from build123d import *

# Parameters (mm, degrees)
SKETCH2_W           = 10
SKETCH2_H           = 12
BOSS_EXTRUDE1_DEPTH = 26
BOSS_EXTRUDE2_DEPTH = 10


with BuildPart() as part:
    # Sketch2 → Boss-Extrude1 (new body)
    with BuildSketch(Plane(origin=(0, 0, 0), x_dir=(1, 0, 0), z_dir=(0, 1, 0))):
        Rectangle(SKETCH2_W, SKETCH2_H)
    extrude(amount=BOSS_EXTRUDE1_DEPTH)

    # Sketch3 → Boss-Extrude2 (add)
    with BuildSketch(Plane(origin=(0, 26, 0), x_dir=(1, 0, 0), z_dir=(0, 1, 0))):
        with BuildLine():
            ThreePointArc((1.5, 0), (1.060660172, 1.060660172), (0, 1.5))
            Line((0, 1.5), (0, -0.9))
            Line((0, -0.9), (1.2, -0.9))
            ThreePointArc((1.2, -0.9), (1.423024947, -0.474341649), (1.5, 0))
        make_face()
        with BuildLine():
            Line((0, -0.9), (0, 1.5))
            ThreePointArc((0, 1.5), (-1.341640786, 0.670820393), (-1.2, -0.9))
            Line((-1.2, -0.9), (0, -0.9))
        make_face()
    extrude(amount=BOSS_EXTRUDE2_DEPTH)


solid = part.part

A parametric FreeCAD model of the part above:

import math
import FreeCAD as App
import Part
import Sketcher
from FreeCAD import Vector
Q = App.Units.Quantity


def add_polygon(sketch, points):
    """Adds a closed chain of lines whose ends are joined by coincident constraints."""
    first, n = sketch.GeometryCount, len(points)
    for a, b in zip(points, points[1:] + points[:1]):
        sketch.addGeometry(Part.LineSegment(App.Vector(*a, 0), App.Vector(*b, 0)), False)
    for i in range(n):
        sketch.addConstraint(Sketcher.Constraint("Coincident", first + i, 2, first + (i + 1) % n, 1))

doc = App.newDocument("Part")
body = doc.addObject("PartDesign::Body", "Body")

sketch1 = body.newObject("Sketcher::SketchObject", "Sketch")
sketch1.AttachmentSupport = (doc.getObject("XZ_Plane"), [""])
sketch1.MapMode = "FlatFace"
add_polygon(sketch1, [(-5, -6), (-5, 6), (5, 6), (5, -6)])
sketch1.addConstraint(Sketcher.Constraint("Vertical", 0))
sketch1.addConstraint(Sketcher.Constraint("Horizontal", 1))
sketch1.addConstraint(Sketcher.Constraint("Vertical", 2))
sketch1.addConstraint(Sketcher.Constraint("Horizontal", 3))
sketch1.addConstraint(Sketcher.Constraint("Symmetric", 0, 2, 2, 2, -1, 1))
sketch1.addConstraint(Sketcher.Constraint("DistanceX", 1, 1, 1, 2, Q("10 mm")))
sketch1.addConstraint(Sketcher.Constraint("DistanceY", 0, 1, 0, 2, Q("12 mm")))
pad1 = body.newObject("PartDesign::Pad", "Pad")
pad1.Profile = sketch1
pad1.Length = 26
pad1.Reversed = True

sketch2 = body.newObject("Sketcher::SketchObject", "Sketch001")
sketch2.AttachmentSupport = (doc.getObject("XZ_Plane"), [""])
sketch2.MapMode = "FlatFace"
sketch2.AttachmentOffset = App.Placement(Vector(0, 0, -26), App.Rotation())
sketch2.addGeometry(Part.ArcOfCircle(Part.Circle(Vector(0, 0, 0), Vector(0, 0, 1), 1.5), math.radians(0), math.radians(37)), False)
sketch2.addGeometry(Part.ArcOfCircle(Part.Circle(Vector(0, 0, 0), Vector(0, 0, 1), 1.5), math.radians(-90), math.radians(0)), False)
sketch2.addGeometry(Part.ArcOfCircle(Part.Circle(Vector(0, 0, 0), Vector(0, 0, 1), 1.5), math.radians(143), math.radians(270)), False)
sketch2.addGeometry(Part.LineSegment(Vector(-1.2, 0.9, 0), Vector(1.2, 0.9, 0)), False)
sketch2.addConstraint(Sketcher.Constraint("Tangent", 0, 1, 1, 2))
sketch2.addConstraint(Sketcher.Constraint("Tangent", 1, 1, 2, 2))
sketch2.addConstraint(Sketcher.Constraint("Coincident", 2, 1, 3, 1))
sketch2.addConstraint(Sketcher.Constraint("Coincident", 3, 2, 0, 2))
sketch2.addConstraint(Sketcher.Constraint("Horizontal", 3))
sketch2.addConstraint(Sketcher.Constraint("Coincident", 0, 3, -1, 1))
sketch2.addConstraint(Sketcher.Constraint("Coincident", 2, 3, -1, 1))
sketch2.addConstraint(Sketcher.Constraint("PointOnObject", 0, 1, -1))
sketch2.addConstraint(Sketcher.Constraint("PointOnObject", 1, 1, -2))
sketch2.addConstraint(Sketcher.Constraint("Radius", 0, Q("1.5 mm")))
sketch2.addConstraint(Sketcher.Constraint("DistanceX", 3, 1, 3, 2, Q("2.4 mm")))
pad2 = body.newObject("PartDesign::Pad", "Pad001")
pad2.Profile = sketch2
pad2.Length = 10
pad2.Reversed = True

doc.recompute()
